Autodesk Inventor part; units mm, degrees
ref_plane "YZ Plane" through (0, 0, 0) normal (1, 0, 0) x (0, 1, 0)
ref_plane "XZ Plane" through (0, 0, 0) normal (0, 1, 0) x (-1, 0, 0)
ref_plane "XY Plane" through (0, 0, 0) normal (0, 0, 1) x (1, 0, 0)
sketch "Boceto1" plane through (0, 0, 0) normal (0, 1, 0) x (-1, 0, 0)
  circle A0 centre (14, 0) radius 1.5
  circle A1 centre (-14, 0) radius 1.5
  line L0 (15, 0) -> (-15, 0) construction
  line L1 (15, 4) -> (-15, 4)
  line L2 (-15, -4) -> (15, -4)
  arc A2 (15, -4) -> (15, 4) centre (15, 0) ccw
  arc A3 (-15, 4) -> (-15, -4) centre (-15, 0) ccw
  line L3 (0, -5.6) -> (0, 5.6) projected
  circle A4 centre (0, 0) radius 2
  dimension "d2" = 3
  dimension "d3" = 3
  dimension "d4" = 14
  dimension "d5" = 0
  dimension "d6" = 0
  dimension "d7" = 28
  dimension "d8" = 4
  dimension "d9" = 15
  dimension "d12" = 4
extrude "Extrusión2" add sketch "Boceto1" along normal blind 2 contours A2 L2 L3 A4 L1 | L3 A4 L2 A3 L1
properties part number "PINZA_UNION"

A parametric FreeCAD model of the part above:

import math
import FreeCAD as App
import Part
import Sketcher

doc = App.newDocument("Part")
body = doc.addObject("PartDesign::Body", "Body")

# Sketch on XZ plane
sketch1 = body.newObject("Sketcher::SketchObject", "Sketch")
sketch1.AttachmentSupport = (doc.getObject("XZ_Plane"), [""])
sketch1.MapMode = "FlatFace"
sketch1.addGeometry(Part.ArcOfCircle(Part.Circle(App.Vector(-15, 0, 0), App.Vector(0, 0, 1), 4), math.radians(90), math.radians(270)), False)
sketch1.addGeometry(Part.LineSegment(App.Vector(-15, 4, 0), App.Vector(15, 4, 0)), False)
sketch1.addGeometry(Part.ArcOfCircle(Part.Circle(App.Vector(15, 0, 0), App.Vector(0, 0, 1), 4), math.radians(-90), math.radians(90)), False)
sketch1.addGeometry(Part.LineSegment(App.Vector(15, -4, 0), App.Vector(-15, -4, 0)), False)
sketch1.addGeometry(Part.Circle(App.Vector(0, 0, 0), App.Vector(0, 0, 1), 2), False)
sketch1.addGeometry(Part.Circle(App.Vector(-14, 0, 0), App.Vector(0, 0, 1), 1.5), False)
sketch1.addGeometry(Part.Circle(App.Vector(14, 0, 0), App.Vector(0, 0, 1), 1.5), False)
sketch1.addConstraint(Sketcher.Constraint("Tangent", 0, 1, 1, 1))
sketch1.addConstraint(Sketcher.Constraint("Tangent", 1, 2, 2, 2))
sketch1.addConstraint(Sketcher.Constraint("Tangent", 2, 1, 3, 1))
sketch1.addConstraint(Sketcher.Constraint("Tangent", 3, 2, 0, 2))
sketch1.addConstraint(Sketcher.Constraint("Horizontal", 1))
sketch1.addConstraint(Sketcher.Constraint("Horizontal", 3))
sketch1.addConstraint(Sketcher.Constraint("Coincident", 4, 3, -1, 1))
sketch1.addConstraint(Sketcher.Constraint("Equal", 5, 6))
sketch1.addConstraint(Sketcher.Constraint("Symmetric", 0, 3, 2, 3, -1, 1))
sketch1.addConstraint(Sketcher.Constraint("Symmetric", 5, 3, 6, 3, -1, 1))
sketch1.addConstraint(Sketcher.Constraint("PointOnObject", 5, 3, -1))
sketch1.addConstraint(Sketcher.Constraint("Diameter", 4, 4.0))
sketch1.addConstraint(Sketcher.Constraint("Diameter", 5, 3.0))
sketch1.addConstraint(Sketcher.Constraint("Radius", 0, 4.0))
sketch1.addConstraint(Sketcher.Constraint("DistanceX", 0, 3, -1, 1, 15.0))
sketch1.addConstraint(Sketcher.Constraint("DistanceX", 5, 3, -1, 1, 14.0))
pad1 = body.newObject("PartDesign::Pad", "Pad")
pad1.Profile = sketch1
pad1.Length = 2
pad1.Reversed = True

doc.recompute()
